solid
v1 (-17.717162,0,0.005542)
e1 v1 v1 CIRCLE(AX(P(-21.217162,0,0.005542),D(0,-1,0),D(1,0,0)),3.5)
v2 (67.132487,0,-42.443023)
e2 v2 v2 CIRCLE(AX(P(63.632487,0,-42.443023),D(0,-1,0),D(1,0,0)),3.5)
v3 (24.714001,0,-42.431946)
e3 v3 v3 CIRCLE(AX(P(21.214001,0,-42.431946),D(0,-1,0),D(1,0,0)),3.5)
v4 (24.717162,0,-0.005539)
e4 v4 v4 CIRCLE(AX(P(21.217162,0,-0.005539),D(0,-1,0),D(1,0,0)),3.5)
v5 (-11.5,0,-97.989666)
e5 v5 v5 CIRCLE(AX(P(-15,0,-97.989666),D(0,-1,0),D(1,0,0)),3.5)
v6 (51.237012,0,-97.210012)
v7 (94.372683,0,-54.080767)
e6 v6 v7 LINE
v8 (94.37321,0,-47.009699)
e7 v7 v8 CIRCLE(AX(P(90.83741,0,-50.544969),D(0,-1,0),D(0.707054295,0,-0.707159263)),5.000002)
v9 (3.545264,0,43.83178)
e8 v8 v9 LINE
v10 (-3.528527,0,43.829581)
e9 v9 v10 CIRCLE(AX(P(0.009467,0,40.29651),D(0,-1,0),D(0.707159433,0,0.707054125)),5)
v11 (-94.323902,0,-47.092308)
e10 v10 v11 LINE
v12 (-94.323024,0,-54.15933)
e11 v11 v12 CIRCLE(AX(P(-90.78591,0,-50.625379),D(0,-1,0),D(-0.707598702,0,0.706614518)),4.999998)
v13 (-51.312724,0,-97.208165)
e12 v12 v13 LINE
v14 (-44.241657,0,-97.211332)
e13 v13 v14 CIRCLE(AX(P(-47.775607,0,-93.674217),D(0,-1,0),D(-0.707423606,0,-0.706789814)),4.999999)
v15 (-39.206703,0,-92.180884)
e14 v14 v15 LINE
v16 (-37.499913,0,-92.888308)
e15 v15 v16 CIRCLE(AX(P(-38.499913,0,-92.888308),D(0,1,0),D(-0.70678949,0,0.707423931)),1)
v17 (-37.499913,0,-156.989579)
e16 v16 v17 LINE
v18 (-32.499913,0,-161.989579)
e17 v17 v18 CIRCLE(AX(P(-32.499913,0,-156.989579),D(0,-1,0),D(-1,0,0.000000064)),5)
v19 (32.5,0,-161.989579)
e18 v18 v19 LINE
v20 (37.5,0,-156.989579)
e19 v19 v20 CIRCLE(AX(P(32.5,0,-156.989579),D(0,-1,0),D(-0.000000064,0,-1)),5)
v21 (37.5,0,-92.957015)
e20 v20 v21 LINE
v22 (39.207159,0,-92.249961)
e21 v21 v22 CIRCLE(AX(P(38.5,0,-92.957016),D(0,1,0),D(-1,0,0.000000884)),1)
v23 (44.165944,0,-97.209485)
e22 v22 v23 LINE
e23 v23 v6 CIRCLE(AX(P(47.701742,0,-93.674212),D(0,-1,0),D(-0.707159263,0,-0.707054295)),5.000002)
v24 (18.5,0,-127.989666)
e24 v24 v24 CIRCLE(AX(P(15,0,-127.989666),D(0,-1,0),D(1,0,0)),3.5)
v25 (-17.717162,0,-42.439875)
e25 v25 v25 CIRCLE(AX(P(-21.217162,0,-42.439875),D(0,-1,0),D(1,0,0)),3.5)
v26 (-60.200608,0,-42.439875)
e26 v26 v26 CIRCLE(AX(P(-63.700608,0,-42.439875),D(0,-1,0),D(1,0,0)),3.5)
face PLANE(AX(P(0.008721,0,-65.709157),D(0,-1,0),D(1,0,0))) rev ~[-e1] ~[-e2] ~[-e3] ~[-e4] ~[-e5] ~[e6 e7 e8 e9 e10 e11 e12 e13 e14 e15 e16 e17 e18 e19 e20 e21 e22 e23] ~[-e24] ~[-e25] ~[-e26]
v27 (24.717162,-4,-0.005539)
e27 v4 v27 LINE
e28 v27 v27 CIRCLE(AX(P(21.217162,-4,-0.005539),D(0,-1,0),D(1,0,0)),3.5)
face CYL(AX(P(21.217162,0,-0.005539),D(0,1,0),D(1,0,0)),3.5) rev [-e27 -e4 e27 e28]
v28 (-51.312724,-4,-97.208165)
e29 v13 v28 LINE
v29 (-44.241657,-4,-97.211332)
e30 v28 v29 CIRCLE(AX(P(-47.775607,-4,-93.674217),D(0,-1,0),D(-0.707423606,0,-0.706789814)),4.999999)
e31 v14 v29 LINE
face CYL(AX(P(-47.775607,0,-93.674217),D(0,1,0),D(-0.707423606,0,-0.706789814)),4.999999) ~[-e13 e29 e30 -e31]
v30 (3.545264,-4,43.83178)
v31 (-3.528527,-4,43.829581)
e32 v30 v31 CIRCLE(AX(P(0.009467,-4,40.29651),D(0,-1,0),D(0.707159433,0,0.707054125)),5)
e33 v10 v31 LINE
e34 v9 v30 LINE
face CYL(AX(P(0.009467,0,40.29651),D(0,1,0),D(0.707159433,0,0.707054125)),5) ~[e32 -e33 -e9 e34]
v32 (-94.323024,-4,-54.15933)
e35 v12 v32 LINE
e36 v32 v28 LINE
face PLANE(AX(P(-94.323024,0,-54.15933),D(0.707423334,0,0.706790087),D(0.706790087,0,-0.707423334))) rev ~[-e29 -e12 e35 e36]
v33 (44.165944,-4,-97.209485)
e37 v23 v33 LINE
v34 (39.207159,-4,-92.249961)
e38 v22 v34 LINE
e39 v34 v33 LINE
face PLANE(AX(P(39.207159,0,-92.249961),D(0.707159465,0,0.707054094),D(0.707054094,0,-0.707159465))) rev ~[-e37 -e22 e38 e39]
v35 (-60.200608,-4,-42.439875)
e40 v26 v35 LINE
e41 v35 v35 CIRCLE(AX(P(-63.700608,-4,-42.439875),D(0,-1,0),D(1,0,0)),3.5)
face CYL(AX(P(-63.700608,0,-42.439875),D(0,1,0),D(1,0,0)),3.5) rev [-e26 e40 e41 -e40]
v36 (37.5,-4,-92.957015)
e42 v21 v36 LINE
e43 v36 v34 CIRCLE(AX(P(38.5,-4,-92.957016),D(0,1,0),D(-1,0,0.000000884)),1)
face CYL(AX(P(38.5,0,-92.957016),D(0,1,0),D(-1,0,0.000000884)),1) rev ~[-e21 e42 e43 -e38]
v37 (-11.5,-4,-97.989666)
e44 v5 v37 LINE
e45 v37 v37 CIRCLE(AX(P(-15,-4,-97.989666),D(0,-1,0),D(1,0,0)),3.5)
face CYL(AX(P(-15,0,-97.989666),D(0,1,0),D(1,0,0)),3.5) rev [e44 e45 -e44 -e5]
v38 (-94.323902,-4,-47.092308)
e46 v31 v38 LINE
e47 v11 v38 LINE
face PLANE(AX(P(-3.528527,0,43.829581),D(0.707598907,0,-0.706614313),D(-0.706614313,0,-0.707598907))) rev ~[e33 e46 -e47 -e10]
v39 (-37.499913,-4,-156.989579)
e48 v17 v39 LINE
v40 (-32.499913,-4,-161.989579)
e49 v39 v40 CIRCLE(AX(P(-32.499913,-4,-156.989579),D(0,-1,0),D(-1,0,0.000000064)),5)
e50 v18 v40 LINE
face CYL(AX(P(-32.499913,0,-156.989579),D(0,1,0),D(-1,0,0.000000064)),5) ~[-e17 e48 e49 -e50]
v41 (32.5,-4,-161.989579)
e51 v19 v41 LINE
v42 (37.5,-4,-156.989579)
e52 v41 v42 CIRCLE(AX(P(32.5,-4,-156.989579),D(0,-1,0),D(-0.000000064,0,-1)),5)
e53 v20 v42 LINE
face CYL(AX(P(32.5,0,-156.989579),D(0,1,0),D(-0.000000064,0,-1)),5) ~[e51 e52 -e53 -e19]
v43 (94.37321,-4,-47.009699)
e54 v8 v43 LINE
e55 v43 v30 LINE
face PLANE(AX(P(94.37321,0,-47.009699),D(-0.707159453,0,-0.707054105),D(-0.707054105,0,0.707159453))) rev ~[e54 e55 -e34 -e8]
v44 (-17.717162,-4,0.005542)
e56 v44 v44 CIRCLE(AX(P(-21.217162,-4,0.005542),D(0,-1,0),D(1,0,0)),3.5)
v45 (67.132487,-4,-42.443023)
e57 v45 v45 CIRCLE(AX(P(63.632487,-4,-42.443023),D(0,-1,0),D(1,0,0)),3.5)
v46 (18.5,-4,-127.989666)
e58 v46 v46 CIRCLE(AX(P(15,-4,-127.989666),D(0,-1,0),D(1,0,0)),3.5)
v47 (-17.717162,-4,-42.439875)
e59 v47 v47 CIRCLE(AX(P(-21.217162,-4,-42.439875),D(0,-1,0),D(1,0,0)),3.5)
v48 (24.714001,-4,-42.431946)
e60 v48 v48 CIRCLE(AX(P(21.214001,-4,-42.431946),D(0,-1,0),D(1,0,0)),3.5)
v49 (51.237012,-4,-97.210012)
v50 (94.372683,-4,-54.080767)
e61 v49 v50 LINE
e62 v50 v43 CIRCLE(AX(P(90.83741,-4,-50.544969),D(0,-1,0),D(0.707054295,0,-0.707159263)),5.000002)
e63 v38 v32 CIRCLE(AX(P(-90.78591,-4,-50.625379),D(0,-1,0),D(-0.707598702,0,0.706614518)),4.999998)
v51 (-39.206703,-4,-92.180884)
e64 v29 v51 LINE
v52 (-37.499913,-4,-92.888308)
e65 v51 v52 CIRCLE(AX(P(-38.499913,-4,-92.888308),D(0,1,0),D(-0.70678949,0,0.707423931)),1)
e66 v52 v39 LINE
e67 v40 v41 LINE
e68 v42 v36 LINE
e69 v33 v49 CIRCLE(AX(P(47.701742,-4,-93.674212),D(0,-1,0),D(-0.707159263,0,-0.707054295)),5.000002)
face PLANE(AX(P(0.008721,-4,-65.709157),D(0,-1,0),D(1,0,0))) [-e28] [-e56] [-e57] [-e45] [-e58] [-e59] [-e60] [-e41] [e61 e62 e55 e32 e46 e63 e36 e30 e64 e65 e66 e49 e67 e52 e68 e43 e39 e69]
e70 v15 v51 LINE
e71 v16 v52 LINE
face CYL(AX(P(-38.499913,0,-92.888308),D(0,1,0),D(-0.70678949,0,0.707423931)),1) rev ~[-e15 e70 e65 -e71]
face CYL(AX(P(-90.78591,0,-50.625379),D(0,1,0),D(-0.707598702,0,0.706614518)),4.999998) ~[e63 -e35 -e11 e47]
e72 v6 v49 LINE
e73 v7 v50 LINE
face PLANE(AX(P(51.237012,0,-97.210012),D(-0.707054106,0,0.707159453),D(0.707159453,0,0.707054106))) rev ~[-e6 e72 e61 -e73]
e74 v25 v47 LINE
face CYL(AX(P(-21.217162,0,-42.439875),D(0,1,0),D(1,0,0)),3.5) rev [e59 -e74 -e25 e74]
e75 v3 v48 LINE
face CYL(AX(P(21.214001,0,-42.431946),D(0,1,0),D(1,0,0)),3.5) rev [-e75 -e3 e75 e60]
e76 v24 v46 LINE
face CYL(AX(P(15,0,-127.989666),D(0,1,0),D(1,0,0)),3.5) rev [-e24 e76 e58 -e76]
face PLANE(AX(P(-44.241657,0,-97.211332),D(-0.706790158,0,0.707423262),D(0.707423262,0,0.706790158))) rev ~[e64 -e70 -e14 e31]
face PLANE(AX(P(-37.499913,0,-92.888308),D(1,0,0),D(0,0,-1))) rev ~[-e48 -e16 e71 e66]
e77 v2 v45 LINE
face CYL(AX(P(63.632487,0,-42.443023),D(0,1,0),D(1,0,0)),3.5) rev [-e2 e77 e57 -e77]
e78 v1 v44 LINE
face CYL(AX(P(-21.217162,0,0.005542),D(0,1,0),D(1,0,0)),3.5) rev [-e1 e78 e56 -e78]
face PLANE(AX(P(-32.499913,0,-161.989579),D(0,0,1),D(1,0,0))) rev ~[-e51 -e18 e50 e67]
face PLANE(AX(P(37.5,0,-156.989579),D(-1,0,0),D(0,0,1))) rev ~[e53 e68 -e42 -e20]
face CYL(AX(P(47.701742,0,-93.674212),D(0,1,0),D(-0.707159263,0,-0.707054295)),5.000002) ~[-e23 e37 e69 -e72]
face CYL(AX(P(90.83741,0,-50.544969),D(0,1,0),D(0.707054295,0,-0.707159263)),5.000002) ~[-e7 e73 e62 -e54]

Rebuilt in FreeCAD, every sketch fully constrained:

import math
import FreeCAD as App
import Part
import Sketcher
Q = App.Units.Quantity

doc = App.newDocument("Part")
params = doc.addObject("Spreadsheet::Sheet", "Params")
for row, (alias, value) in enumerate([
    ("sketch1_diameter", "7 mm"),
    ("sketch1_diameter2", "7 mm"),
    ("sketch1_diameter3", "7 mm"),
    ("sketch1_diameter4", "7 mm"),
    ("sketch1_diameter5", "7 mm"),
    ("pad1_length", "4 mm"),
], start=1):
    params.set(f"A{row}", alias)
    params.set(f"B{row}", "=" + value)
    params.setAlias(f"B{row}", alias)

body = doc.addObject("PartDesign::Body", "Body")

sketch1 = body.newObject("Sketcher::SketchObject", "Sketch")
sketch1.AttachmentSupport = (doc.getObject("XZ_Plane"), [""])
sketch1.MapMode = "FlatFace"
sketch1.addGeometry([
    Part.ArcOfCircle(Part.Circle(App.Vector(-32.499913, -156.989579, 0), App.Vector(0, 0, 1), 5), math.radians(179.999996), math.radians(270.000004)),
    Part.LineSegment(App.Vector(-32.499913, -161.989579, 0), App.Vector(32.5, -161.989579, 0)),
    Part.ArcOfCircle(Part.Circle(App.Vector(32.5, -156.989579, 0), App.Vector(0, 0, 1), 5), math.radians(-90.000004), math.radians(0.000004)),
    Part.LineSegment(App.Vector(37.5, -156.989579, 0), App.Vector(37.5, -92.957015, 0)),
    Part.ArcOfCircle(Part.Circle(App.Vector(38.5, -92.957016, 0), App.Vector(0, 0, 1), 1), math.radians(44.995787), math.radians(179.999949)),
    Part.LineSegment(App.Vector(39.207159, -92.249961, 0), App.Vector(44.165944, -97.209485, 0)),
    Part.ArcOfCircle(Part.Circle(App.Vector(47.701741, -93.674212, 0), App.Vector(0, 0, 1), 5.000002), math.radians(-135.004253), math.radians(-45.004288)),
    Part.LineSegment(App.Vector(51.237012, -97.210012, 0), App.Vector(94.372683, -54.080767, 0)),
    Part.ArcOfCircle(Part.Circle(App.Vector(90.83741, -50.54497, 0), App.Vector(0, 0, 1), 5.000002), math.radians(-45.004253), math.radians(44.995712)),
    Part.LineSegment(App.Vector(94.37321, -47.009699, 0), App.Vector(3.545264, 43.83178, 0)),
    Part.ArcOfCircle(Part.Circle(App.Vector(0.009467, 40.29651, 0), App.Vector(0, 0, 1), 5), math.radians(44.995734), math.radians(135.039889)),
    Part.LineSegment(App.Vector(-3.528527, 43.829581, 0), App.Vector(-94.323902, -47.092308, 0)),
    Part.ArcOfCircle(Part.Circle(App.Vector(-90.78591, -50.625379, 0), App.Vector(0, 0, 1), 4.999998), math.radians(135.039873), math.radians(224.974363)),
    Part.LineSegment(App.Vector(-94.323024, -54.15933, 0), App.Vector(-51.312724, -97.208165, 0)),
    Part.ArcOfCircle(Part.Circle(App.Vector(-47.775607, -93.674217, 0), App.Vector(0, 0, 1), 4.999999), math.radians(-135.025678), math.radians(-45.025646)),
    Part.LineSegment(App.Vector(-44.241657, -97.211332, 0), App.Vector(-39.206703, -92.180884, 0)),
    Part.ArcOfCircle(Part.Circle(App.Vector(-38.499913, -92.888308, 0), App.Vector(0, 0, 1), 1), math.radians(0.000008), math.radians(134.974296)),
    Part.LineSegment(App.Vector(-37.499913, -92.888308, 0), App.Vector(-37.499913, -156.989579, 0)),
    Part.Circle(App.Vector(-15, -97.989666, 0), App.Vector(0, 0, 1), 3.5),
    Part.Circle(App.Vector(15, -127.989666, 0), App.Vector(0, 0, 1), 3.5),
    Part.Circle(App.Vector(-63.700608, -42.439875, 0), App.Vector(0, 0, 1), 3.5),
    Part.Circle(App.Vector(-21.217162, -42.439875, 0), App.Vector(0, 0, 1), 3.5),
    Part.Circle(App.Vector(-21.217162, 0.005542, 0), App.Vector(0, 0, 1), 3.5),
    Part.Circle(App.Vector(21.214001, -42.431946, 0), App.Vector(0, 0, 1), 3.5),
    Part.Circle(App.Vector(63.632487, -42.443023, 0), App.Vector(0, 0, 1), 3.5),
    Part.Circle(App.Vector(21.217162, -0.005539, 0), App.Vector(0, 0, 1), 3.5),
], False)
sketch1.addConstraint([
    Sketcher.Constraint("Coincident", 0, 2, 1, 1),
    Sketcher.Constraint("Coincident", 1, 2, 2, 1),
    Sketcher.Constraint("Coincident", 2, 2, 3, 1),
    Sketcher.Constraint("Coincident", 3, 2, 4, 2),
    Sketcher.Constraint("Coincident", 4, 1, 5, 1),
    Sketcher.Constraint("Coincident", 5, 2, 6, 1),
    Sketcher.Constraint("Coincident", 6, 2, 7, 1),
    Sketcher.Constraint("Coincident", 7, 2, 8, 1),
    Sketcher.Constraint("Coincident", 8, 2, 9, 1),
    Sketcher.Constraint("Coincident", 9, 2, 10, 1),
    Sketcher.Constraint("Coincident", 10, 2, 11, 1),
    Sketcher.Constraint("Coincident", 11, 2, 12, 1),
    Sketcher.Constraint("Coincident", 12, 2, 13, 1),
    Sketcher.Constraint("Coincident", 13, 2, 14, 1),
    Sketcher.Constraint("Coincident", 14, 2, 15, 1),
    Sketcher.Constraint("Coincident", 15, 2, 16, 2),
    Sketcher.Constraint("Coincident", 16, 1, 17, 1),
    Sketcher.Constraint("Coincident", 17, 2, 0, 1),
    Sketcher.Constraint("Horizontal", 1),
    Sketcher.Constraint("Vertical", 3),
    Sketcher.Constraint("Vertical", 17),
    Sketcher.Constraint("Diameter", 18, Q("7 mm")),
    Sketcher.Constraint("Diameter", 19, Q("7 mm")),
    Sketcher.Constraint("Diameter", 20, Q("7 mm")),
    Sketcher.Constraint("Diameter", 21, Q("7 mm")),
    Sketcher.Constraint("Diameter", 22, Q("7 mm")),
    Sketcher.Constraint("Diameter", 23, Q("7 mm")),
    Sketcher.Constraint("Diameter", 24, Q("7 mm")),
    Sketcher.Constraint("Diameter", 25, Q("7 mm")),
    Sketcher.Constraint("Radius", 0, Q("5 mm")),
    Sketcher.Constraint("Radius", 2, Q("5 mm")),
    Sketcher.Constraint("Radius", 4, Q("1 mm")),
    Sketcher.Constraint("Radius", 6, Q("5.000002 mm")),
    Sketcher.Constraint("Radius", 8, Q("5.000002 mm")),
    Sketcher.Constraint("Radius", 10, Q("5 mm")),
    Sketcher.Constraint("Radius", 12, Q("4.999998 mm")),
    Sketcher.Constraint("Radius", 14, Q("4.999999 mm")),
    Sketcher.Constraint("Radius", 16, Q("1 mm")),
    Sketcher.Constraint("DistanceX", 18, 3, -1, 1, Q("15 mm")),
    Sketcher.Constraint("DistanceX", -1, 1, 19, 3, Q("15 mm")),
    Sketcher.Constraint("DistanceY", 19, 3, 18, 3, Q("30 mm")),
    Sketcher.Constraint("DistanceX", 16, 3, 0, 2, Q("6 mm")),
    Sketcher.Constraint("DistanceX", 1, 2, 4, 3, Q("6 mm")),
    Sketcher.Constraint("DistanceY", 1, 2, 2, 2, Q("5 mm")),
    Sketcher.Constraint("DistanceY", 0, 2, 17, 2, Q("5 mm")),
    Sketcher.Constraint("DistanceX", -1, 1, 2, 3, Q("32.5 mm")),
    Sketcher.Constraint("DistanceX", -1, 1, 23, 3, Q("21.214001 mm")),
    Sketcher.Constraint("DistanceX", 20, 3, 14, 3, Q("15.925001 mm")),
    Sketcher.Constraint("DistanceY", 16, 3, 11, 2, Q("45.796 mm")),
    Sketcher.Constraint("DistanceY", 17, 2, 17, 1, Q("64.101271 mm")),
    Sketcher.Constraint("DistanceY", 8, 2, -1, 1, Q("47.009699 mm")),
    Sketcher.Constraint("DistanceY", 0, 3, 12, 3, Q("106.3642 mm")),
    Sketcher.Constraint("DistanceY", 14, 3, 4, 3, Q("0.717201 mm")),
    Sketcher.Constraint("DistanceX", 12, 3, 20, 3, Q("27.085302 mm")),
    Sketcher.Constraint("DistanceY", 6, 2, 6, 3, Q("3.5358 mm")),
    Sketcher.Constraint("DistanceX", 8, 3, 8, 2, Q("3.5358 mm")),
    Sketcher.Constraint("DistanceY", 10, 2, 9, 2, Q("0.002199 mm")),
    Sketcher.Constraint("DistanceY", 18, 3, 13, 2, Q("0.781501 mm")),
    Sketcher.Constraint("DistanceX", 12, 2, 13, 2, Q("43.0103 mm")),
    Sketcher.Constraint("Distance", 11, Q("128.493541 mm")),
    Sketcher.Constraint("DistanceX", 1, 1, 1, 2, Q("64.999913 mm")),
    Sketcher.Constraint("DistanceY", 3, 1, 3, 2, Q("64.032564 mm")),
    Sketcher.Constraint("DistanceY", 0, 3, -1, 1, Q("156.989579 mm")),
    Sketcher.Constraint("DistanceX", -1, 1, 6, 3, Q("47.701741 mm")),
    Sketcher.Constraint("DistanceX", -1, 1, 8, 3, Q("90.83741 mm")),
    Sketcher.Constraint("DistanceY", -1, 1, 10, 3, Q("40.29651 mm")),
    Sketcher.Constraint("DistanceX", 12, 3, -1, 1, Q("90.78591 mm")),
    Sketcher.Constraint("DistanceY", 16, 3, -1, 1, Q("92.888308 mm")),
    Sketcher.Constraint("DistanceX", 21, 3, -1, 1, Q("21.217162 mm")),
    Sketcher.Constraint("DistanceX", 22, 3, -1, 1, Q("21.217162 mm")),
    Sketcher.Constraint("DistanceX", -1, 1, 25, 3, Q("21.217162 mm")),
    Sketcher.Constraint("DistanceY", 25, 3, -1, 1, Q("0.005539 mm")),
    Sketcher.Constraint("DistanceX", -1, 1, 4, 1, Q("39.207159 mm")),
    Sketcher.Constraint("DistanceY", 4, 1, -1, 1, Q("92.249961 mm")),
    Sketcher.Constraint("DistanceY", 6, 2, -1, 1, Q("97.210012 mm")),
    Sketcher.Constraint("DistanceY", -1, 1, 9, 2, Q("43.83178 mm")),
    Sketcher.Constraint("DistanceY", 12, 2, -1, 1, Q("54.15933 mm")),
    Sketcher.Constraint("DistanceY", 14, 3, 20, 3, Q("51.234342 mm")),
    Sketcher.Constraint("DistanceY", 18, 3, 21, 3, Q("55.549791 mm")),
    Sketcher.Constraint("DistanceY", 12, 3, 22, 3, Q("50.630921 mm")),
    Sketcher.Constraint("DistanceY", 21, 3, 23, 3, Q("0.007929 mm")),
    Sketcher.Constraint("DistanceY", 6, 3, 24, 3, Q("51.231189 mm")),
    Sketcher.Constraint("DistanceX", 21, 3, 24, 3, Q("84.849649 mm")),
    Sketcher.Constraint("DistanceY", 5, 2, 4, 3, Q("4.252469 mm")),
    Sketcher.Constraint("DistanceX", 6, 2, 7, 2, Q("43.135671 mm")),
    Sketcher.Constraint("DistanceX", 14, 3, 14, 2, Q("3.53395 mm")),
    Sketcher.Constraint("DistanceX", 15, 2, 16, 3, Q("0.70679 mm")),
])
sketch1.setExpression("Constraints[21]", "Params.sketch1_diameter")
sketch1.setExpression("Constraints[22]", "Params.sketch1_diameter2")
sketch1.setExpression("Constraints[23]", "Params.sketch1_diameter3")
sketch1.setExpression("Constraints[24]", "Params.sketch1_diameter4")
sketch1.setExpression("Constraints[25]", "Params.sketch1_diameter5")
pad1 = body.newObject("PartDesign::Pad", "Pad")
pad1.Profile = sketch1
pad1.setExpression("Length", "Params.pad1_length")

doc.recompute()
